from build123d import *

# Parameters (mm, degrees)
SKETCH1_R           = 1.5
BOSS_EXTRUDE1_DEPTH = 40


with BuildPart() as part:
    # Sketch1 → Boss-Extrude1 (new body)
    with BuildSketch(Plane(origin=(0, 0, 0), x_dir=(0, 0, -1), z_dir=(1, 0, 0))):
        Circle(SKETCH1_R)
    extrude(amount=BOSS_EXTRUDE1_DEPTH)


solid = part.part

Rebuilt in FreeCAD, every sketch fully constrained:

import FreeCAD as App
import Part
import Sketcher
from FreeCAD import Vector
Q = App.Units.Quantity

doc = App.newDocument("Part")
body = doc.addObject("PartDesign::Body", "Body")

sketch1 = body.newObject("Sketcher::SketchObject", "Sketch")
sketch1.AttachmentSupport = (doc.getObject("YZ_Plane"), [""])
sketch1.MapMode = "FlatFace"
sketch1.addGeometry(Part.Circle(Vector(0, 0, 0), Vector(0, 0, 1), 1.5), False)
sketch1.addConstraint(Sketcher.Constraint("Coincident", 0, 3, -1, 1))
sketch1.addConstraint(Sketcher.Constraint("Diameter", 0, Q("3 mm")))
pad1 = body.newObject("PartDesign::Pad", "Pad")
pad1.Profile = sketch1
pad1.Length = 40

doc.recompute()
